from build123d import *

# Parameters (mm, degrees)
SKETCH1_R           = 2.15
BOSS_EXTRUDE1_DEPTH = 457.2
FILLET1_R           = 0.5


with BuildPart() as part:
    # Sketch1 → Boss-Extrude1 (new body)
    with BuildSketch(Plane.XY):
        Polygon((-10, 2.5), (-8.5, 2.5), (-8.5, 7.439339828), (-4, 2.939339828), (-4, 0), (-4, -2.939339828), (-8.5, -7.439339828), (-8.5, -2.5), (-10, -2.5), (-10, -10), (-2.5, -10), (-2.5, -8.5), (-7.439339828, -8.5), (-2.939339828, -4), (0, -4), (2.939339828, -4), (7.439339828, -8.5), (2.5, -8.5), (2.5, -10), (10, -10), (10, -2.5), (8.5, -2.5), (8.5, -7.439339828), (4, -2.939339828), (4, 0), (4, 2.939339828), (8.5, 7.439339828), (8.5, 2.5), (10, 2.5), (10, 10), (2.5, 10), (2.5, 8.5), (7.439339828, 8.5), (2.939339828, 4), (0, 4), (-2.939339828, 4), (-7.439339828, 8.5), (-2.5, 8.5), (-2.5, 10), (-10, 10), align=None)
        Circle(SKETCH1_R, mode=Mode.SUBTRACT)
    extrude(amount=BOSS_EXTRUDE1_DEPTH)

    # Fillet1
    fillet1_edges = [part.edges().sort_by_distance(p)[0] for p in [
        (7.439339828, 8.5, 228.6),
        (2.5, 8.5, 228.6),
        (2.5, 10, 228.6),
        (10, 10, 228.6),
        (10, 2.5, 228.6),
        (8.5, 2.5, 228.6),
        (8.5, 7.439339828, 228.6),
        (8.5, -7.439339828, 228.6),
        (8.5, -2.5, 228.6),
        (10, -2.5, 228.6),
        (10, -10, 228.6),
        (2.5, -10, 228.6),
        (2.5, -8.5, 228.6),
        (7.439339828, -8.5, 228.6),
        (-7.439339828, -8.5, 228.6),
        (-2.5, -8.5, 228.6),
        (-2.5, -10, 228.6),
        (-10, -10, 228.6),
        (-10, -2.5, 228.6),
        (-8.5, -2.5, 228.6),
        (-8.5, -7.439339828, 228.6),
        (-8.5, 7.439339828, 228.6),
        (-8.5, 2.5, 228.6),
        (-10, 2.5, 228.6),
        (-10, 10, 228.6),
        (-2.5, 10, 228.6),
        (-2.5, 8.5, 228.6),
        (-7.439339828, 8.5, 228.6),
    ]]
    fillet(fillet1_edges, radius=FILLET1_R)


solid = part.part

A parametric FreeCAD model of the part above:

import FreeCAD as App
import Part
import Sketcher

V = App.Vector
Q = App.Units.Quantity


def edges_at(feature, points):
    """Names of the edges that pass closest to the given points."""
    edges = feature.Shape.Edges
    near = lambda p: min(range(len(edges)), key=lambda i: edges[i].distToShape(Part.Vertex(*p))[0])
    return sorted({f"Edge{near(p) + 1}" for p in points})

doc = App.newDocument("Part")
body = doc.addObject("PartDesign::Body", "Body")

# Sketch on XY plane
sketch1 = body.newObject("Sketcher::SketchObject", "Sketch")
sketch1.AttachmentSupport = (doc.getObject("XY_Plane"), [""])
sketch1.MapMode = "FlatFace"
sketch1.addGeometry([
    Part.LineSegment(V(-10, 2.5, 0), V(-8.5, 2.5, 0)),  # 0
    Part.LineSegment(V(-8.5, 2.5, 0), V(-8.5, 7.4, 0)),  # 1
    Part.LineSegment(V(-8.5, 7.4, 0), V(-4, 2.9, 0)),  # 2
    Part.LineSegment(V(-4, 2.9, 0), V(-4, -2.9, 0)),  # 3
    Part.LineSegment(V(-4, -2.9, 0), V(-8.5, -7.4, 0)),  # 4
    Part.LineSegment(V(-8.5, -7.4, 0), V(-8.5, -2.5, 0)),  # 5
    Part.LineSegment(V(-8.5, -2.5, 0), V(-10, -2.5, 0)),  # 6
    Part.LineSegment(V(-10, -2.5, 0), V(-10, -10, 0)),  # 7
    Part.LineSegment(V(-10, -10, 0), V(-2.5, -10, 0)),  # 8
    Part.LineSegment(V(-2.5, -10, 0), V(-2.5, -8.5, 0)),  # 9
    Part.LineSegment(V(-2.5, -8.5, 0), V(-7.4, -8.5, 0)),  # 10
    Part.LineSegment(V(-7.4, -8.5, 0), V(-2.9, -4, 0)),  # 11
    Part.LineSegment(V(-2.9, -4, 0), V(2.9, -4, 0)),  # 12
    Part.LineSegment(V(2.9, -4, 0), V(7.4, -8.5, 0)),  # 13
    Part.LineSegment(V(7.4, -8.5, 0), V(2.5, -8.5, 0)),  # 14
    Part.LineSegment(V(2.5, -8.5, 0), V(2.5, -10, 0)),  # 15
    Part.LineSegment(V(2.5, -10, 0), V(10, -10, 0)),  # 16
    Part.LineSegment(V(10, -10, 0), V(10, -2.5, 0)),  # 17
    Part.LineSegment(V(10, -2.5, 0), V(8.5, -2.5, 0)),  # 18
    Part.LineSegment(V(8.5, -2.5, 0), V(8.5, -7.4, 0)),  # 19
    Part.LineSegment(V(8.5, -7.4, 0), V(4, -2.9, 0)),  # 20
    Part.LineSegment(V(4, -2.9, 0), V(4, 2.9, 0)),  # 21
    Part.LineSegment(V(4, 2.9, 0), V(8.5, 7.4, 0)),  # 22
    Part.LineSegment(V(8.5, 7.4, 0), V(8.5, 2.5, 0)),  # 23
    Part.LineSegment(V(8.5, 2.5, 0), V(10, 2.5, 0)),  # 24
    Part.LineSegment(V(10, 2.5, 0), V(10, 10, 0)),  # 25
    Part.LineSegment(V(10, 10, 0), V(2.5, 10, 0)),  # 26
    Part.LineSegment(V(2.5, 10, 0), V(2.5, 8.5, 0)),  # 27
    Part.LineSegment(V(2.5, 8.5, 0), V(7.4, 8.5, 0)),  # 28
    Part.LineSegment(V(7.4, 8.5, 0), V(2.9, 4, 0)),  # 29
    Part.LineSegment(V(2.9, 4, 0), V(-2.9, 4, 0)),  # 30
    Part.LineSegment(V(-2.9, 4, 0), V(-7.4, 8.5, 0)),  # 31
    Part.LineSegment(V(-7.4, 8.5, 0), V(-2.5, 8.5, 0)),  # 32
    Part.LineSegment(V(-2.5, 8.5, 0), V(-2.5, 10, 0)),  # 33
    Part.LineSegment(V(-2.5, 10, 0), V(-10, 10, 0)),  # 34
    Part.LineSegment(V(-10, 10, 0), V(-10, 2.5, 0)),  # 35
    Part.Circle(V(0, 0, 0), V(0, 0, 1), 2.1),  # 36
], False)
sketch1.addConstraint([
    Sketcher.Constraint("Coincident", 0, 2, 1, 1),
    Sketcher.Constraint("Coincident", 1, 2, 2, 1),
    Sketcher.Constraint("Coincident", 2, 2, 3, 1),
    Sketcher.Constraint("Coincident", 3, 2, 4, 1),
    Sketcher.Constraint("Coincident", 4, 2, 5, 1),
    Sketcher.Constraint("Coincident", 5, 2, 6, 1),
    Sketcher.Constraint("Coincident", 6, 2, 7, 1),
    Sketcher.Constraint("Coincident", 7, 2, 8, 1),
    Sketcher.Constraint("Coincident", 8, 2, 9, 1),
    Sketcher.Constraint("Coincident", 9, 2, 10, 1),
    Sketcher.Constraint("Coincident", 10, 2, 11, 1),
    Sketcher.Constraint("Coincident", 11, 2, 12, 1),
    Sketcher.Constraint("Coincident", 12, 2, 13, 1),
    Sketcher.Constraint("Coincident", 13, 2, 14, 1),
    Sketcher.Constraint("Coincident", 14, 2, 15, 1),
    Sketcher.Constraint("Coincident", 15, 2, 16, 1),
    Sketcher.Constraint("Coincident", 16, 2, 17, 1),
    Sketcher.Constraint("Coincident", 17, 2, 18, 1),
    Sketcher.Constraint("Coincident", 18, 2, 19, 1),
    Sketcher.Constraint("Coincident", 19, 2, 20, 1),
    Sketcher.Constraint("Coincident", 20, 2, 21, 1),
    Sketcher.Constraint("Coincident", 21, 2, 22, 1),
    Sketcher.Constraint("Coincident", 22, 2, 23, 1),
    Sketcher.Constraint("Coincident", 23, 2, 24, 1),
    Sketcher.Constraint("Coincident", 24, 2, 25, 1),
    Sketcher.Constraint("Coincident", 25, 2, 26, 1),
    Sketcher.Constraint("Coincident", 26, 2, 27, 1),
    Sketcher.Constraint("Coincident", 27, 2, 28, 1),
    Sketcher.Constraint("Coincident", 28, 2, 29, 1),
    Sketcher.Constraint("Coincident", 29, 2, 30, 1),
    Sketcher.Constraint("Coincident", 30, 2, 31, 1),
    Sketcher.Constraint("Coincident", 31, 2, 32, 1),
    Sketcher.Constraint("Coincident", 32, 2, 33, 1),
    Sketcher.Constraint("Coincident", 33, 2, 34, 1),
    Sketcher.Constraint("Coincident", 34, 2, 35, 1),
    Sketcher.Constraint("Coincident", 35, 2, 0, 1),
    Sketcher.Constraint("Horizontal", 0),
    Sketcher.Constraint("Vertical", 1),
    Sketcher.Constraint("Vertical", 3),
    Sketcher.Constraint("Vertical", 5),
    Sketcher.Constraint("Horizontal", 6),
    Sketcher.Constraint("Vertical", 7),
    Sketcher.Constraint("Horizontal", 8),
    Sketcher.Constraint("Vertical", 9),
    Sketcher.Constraint("Horizontal", 10),
    Sketcher.Constraint("Horizontal", 12),
    Sketcher.Constraint("Horizontal", 14),
    Sketcher.Constraint("Vertical", 15),
    Sketcher.Constraint("Horizontal", 16),
    Sketcher.Constraint("Vertical", 17),
    Sketcher.Constraint("Horizontal", 18),
    Sketcher.Constraint("Vertical", 19),
    Sketcher.Constraint("Vertical", 21),
    Sketcher.Constraint("Vertical", 23),
    Sketcher.Constraint("Horizontal", 24),
    Sketcher.Constraint("Vertical", 25),
    Sketcher.Constraint("Horizontal", 26),
    Sketcher.Constraint("Vertical", 27),
    Sketcher.Constraint("Horizontal", 28),
    Sketcher.Constraint("Horizontal", 30),
    Sketcher.Constraint("Horizontal", 32),
    Sketcher.Constraint("Vertical", 33),
    Sketcher.Constraint("Horizontal", 34),
    Sketcher.Constraint("Vertical", 35),
    Sketcher.Constraint("Coincident", 36, 3, -1, 1),
    Sketcher.Constraint("Symmetric", 0, 2, 18, 2, -1, 1),
    Sketcher.Constraint("Symmetric", 2, 2, 20, 2, -1, 1),
    Sketcher.Constraint("Symmetric", 4, 2, 22, 2, -1, 1),
    Sketcher.Constraint("Symmetric", 6, 2, 24, 2, -1, 1),
    Sketcher.Constraint("Symmetric", 8, 2, 26, 2, -1, 1),
    Sketcher.Constraint("Symmetric", 10, 2, 28, 2, -1, 1),
    Sketcher.Constraint("Symmetric", 11, 2, 29, 2, -1, 1),
    Sketcher.Constraint("Symmetric", 13, 2, 31, 2, -1, 1),
    Sketcher.Constraint("Symmetric", 15, 2, 33, 2, -1, 1),
    Sketcher.Constraint("Symmetric", 10, 2, 13, 2, -2),
    Sketcher.Constraint("Symmetric", 8, 2, 15, 2, -2),
    Sketcher.Constraint("Symmetric", 6, 2, 17, 2, -2),
    Sketcher.Constraint("Symmetric", 4, 2, 19, 2, -2),
    Sketcher.Constraint("Perpendicular", 2, 4),
    Sketcher.Constraint("Parallel", 4, 11),
    Sketcher.Constraint("Perpendicular", 11, 13),
    Sketcher.Constraint("Parallel", 13, 20),
    Sketcher.Constraint("Perpendicular", 20, 22),
    Sketcher.Constraint("Perpendicular", 29, 31),
    Sketcher.Constraint("Horizontal", 3, 2, 20, 2),
    Sketcher.Constraint("Vertical", 7, 2, 34, 2),
    Sketcher.Constraint("Equal", 32, 1),
    Sketcher.Constraint("Equal", 30, 3),
    Sketcher.Constraint("Equal", 34, 7),
    Sketcher.Constraint("Equal", 24, 9),
    Sketcher.Constraint("Equal", 4, 11),
    Sketcher.Constraint("Diameter", 36, Q("4.3 mm")),
    Sketcher.Constraint("DistanceX", 0, 1, 0, 2, Q("1.5 mm")),
    Sketcher.Constraint("DistanceX", 8, 1, 8, 2, Q("7.5 mm")),
    Sketcher.Constraint("DistanceX", 2, 2, -1, 1, Q("4 mm")),
    Sketcher.Constraint("DistanceX", 6, 2, -1, 1, Q("10 mm")),
    Sketcher.Constraint("DistanceX", 10, 2, 10, 1, Q("4.93934 mm")),
])
pad1 = body.newObject("PartDesign::Pad", "Pad")
pad1.Profile = sketch1
pad1.Length = 457.2
doc.recompute()

fillet = body.newObject("PartDesign::Fillet", "Fillet")
fillet.Base = (pad1, edges_at(pad1, [
    (7.439, 8.5, 228.6),
    (2.5, 8.5, 228.6),
    (2.5, 10, 228.6),
    (10, 10, 228.6),
    (10, 2.5, 228.6),
    (8.5, 2.5, 228.6),
    (8.5, 7.439, 228.6),
    (8.5, -7.439, 228.6),
    (8.5, -2.5, 228.6),
    (10, -2.5, 228.6),
    (10, -10, 228.6),
    (2.5, -10, 228.6),
    (2.5, -8.5, 228.6),
    (7.439, -8.5, 228.6),
    (-7.439, -8.5, 228.6),
    (-2.5, -8.5, 228.6),
    (-2.5, -10, 228.6),
    (-10, -10, 228.6),
    (-10, -2.5, 228.6),
    (-8.5, -2.5, 228.6),
    (-8.5, -7.439, 228.6),
    (-8.5, 7.439, 228.6),
    (-8.5, 2.5, 228.6),
    (-10, 2.5, 228.6),
    (-10, 10, 228.6),
    (-2.5, 10, 228.6),
    (-2.5, 8.5, 228.6),
    (-7.439, 8.5, 228.6),
]))
fillet.Radius = 0.5

doc.recompute()
